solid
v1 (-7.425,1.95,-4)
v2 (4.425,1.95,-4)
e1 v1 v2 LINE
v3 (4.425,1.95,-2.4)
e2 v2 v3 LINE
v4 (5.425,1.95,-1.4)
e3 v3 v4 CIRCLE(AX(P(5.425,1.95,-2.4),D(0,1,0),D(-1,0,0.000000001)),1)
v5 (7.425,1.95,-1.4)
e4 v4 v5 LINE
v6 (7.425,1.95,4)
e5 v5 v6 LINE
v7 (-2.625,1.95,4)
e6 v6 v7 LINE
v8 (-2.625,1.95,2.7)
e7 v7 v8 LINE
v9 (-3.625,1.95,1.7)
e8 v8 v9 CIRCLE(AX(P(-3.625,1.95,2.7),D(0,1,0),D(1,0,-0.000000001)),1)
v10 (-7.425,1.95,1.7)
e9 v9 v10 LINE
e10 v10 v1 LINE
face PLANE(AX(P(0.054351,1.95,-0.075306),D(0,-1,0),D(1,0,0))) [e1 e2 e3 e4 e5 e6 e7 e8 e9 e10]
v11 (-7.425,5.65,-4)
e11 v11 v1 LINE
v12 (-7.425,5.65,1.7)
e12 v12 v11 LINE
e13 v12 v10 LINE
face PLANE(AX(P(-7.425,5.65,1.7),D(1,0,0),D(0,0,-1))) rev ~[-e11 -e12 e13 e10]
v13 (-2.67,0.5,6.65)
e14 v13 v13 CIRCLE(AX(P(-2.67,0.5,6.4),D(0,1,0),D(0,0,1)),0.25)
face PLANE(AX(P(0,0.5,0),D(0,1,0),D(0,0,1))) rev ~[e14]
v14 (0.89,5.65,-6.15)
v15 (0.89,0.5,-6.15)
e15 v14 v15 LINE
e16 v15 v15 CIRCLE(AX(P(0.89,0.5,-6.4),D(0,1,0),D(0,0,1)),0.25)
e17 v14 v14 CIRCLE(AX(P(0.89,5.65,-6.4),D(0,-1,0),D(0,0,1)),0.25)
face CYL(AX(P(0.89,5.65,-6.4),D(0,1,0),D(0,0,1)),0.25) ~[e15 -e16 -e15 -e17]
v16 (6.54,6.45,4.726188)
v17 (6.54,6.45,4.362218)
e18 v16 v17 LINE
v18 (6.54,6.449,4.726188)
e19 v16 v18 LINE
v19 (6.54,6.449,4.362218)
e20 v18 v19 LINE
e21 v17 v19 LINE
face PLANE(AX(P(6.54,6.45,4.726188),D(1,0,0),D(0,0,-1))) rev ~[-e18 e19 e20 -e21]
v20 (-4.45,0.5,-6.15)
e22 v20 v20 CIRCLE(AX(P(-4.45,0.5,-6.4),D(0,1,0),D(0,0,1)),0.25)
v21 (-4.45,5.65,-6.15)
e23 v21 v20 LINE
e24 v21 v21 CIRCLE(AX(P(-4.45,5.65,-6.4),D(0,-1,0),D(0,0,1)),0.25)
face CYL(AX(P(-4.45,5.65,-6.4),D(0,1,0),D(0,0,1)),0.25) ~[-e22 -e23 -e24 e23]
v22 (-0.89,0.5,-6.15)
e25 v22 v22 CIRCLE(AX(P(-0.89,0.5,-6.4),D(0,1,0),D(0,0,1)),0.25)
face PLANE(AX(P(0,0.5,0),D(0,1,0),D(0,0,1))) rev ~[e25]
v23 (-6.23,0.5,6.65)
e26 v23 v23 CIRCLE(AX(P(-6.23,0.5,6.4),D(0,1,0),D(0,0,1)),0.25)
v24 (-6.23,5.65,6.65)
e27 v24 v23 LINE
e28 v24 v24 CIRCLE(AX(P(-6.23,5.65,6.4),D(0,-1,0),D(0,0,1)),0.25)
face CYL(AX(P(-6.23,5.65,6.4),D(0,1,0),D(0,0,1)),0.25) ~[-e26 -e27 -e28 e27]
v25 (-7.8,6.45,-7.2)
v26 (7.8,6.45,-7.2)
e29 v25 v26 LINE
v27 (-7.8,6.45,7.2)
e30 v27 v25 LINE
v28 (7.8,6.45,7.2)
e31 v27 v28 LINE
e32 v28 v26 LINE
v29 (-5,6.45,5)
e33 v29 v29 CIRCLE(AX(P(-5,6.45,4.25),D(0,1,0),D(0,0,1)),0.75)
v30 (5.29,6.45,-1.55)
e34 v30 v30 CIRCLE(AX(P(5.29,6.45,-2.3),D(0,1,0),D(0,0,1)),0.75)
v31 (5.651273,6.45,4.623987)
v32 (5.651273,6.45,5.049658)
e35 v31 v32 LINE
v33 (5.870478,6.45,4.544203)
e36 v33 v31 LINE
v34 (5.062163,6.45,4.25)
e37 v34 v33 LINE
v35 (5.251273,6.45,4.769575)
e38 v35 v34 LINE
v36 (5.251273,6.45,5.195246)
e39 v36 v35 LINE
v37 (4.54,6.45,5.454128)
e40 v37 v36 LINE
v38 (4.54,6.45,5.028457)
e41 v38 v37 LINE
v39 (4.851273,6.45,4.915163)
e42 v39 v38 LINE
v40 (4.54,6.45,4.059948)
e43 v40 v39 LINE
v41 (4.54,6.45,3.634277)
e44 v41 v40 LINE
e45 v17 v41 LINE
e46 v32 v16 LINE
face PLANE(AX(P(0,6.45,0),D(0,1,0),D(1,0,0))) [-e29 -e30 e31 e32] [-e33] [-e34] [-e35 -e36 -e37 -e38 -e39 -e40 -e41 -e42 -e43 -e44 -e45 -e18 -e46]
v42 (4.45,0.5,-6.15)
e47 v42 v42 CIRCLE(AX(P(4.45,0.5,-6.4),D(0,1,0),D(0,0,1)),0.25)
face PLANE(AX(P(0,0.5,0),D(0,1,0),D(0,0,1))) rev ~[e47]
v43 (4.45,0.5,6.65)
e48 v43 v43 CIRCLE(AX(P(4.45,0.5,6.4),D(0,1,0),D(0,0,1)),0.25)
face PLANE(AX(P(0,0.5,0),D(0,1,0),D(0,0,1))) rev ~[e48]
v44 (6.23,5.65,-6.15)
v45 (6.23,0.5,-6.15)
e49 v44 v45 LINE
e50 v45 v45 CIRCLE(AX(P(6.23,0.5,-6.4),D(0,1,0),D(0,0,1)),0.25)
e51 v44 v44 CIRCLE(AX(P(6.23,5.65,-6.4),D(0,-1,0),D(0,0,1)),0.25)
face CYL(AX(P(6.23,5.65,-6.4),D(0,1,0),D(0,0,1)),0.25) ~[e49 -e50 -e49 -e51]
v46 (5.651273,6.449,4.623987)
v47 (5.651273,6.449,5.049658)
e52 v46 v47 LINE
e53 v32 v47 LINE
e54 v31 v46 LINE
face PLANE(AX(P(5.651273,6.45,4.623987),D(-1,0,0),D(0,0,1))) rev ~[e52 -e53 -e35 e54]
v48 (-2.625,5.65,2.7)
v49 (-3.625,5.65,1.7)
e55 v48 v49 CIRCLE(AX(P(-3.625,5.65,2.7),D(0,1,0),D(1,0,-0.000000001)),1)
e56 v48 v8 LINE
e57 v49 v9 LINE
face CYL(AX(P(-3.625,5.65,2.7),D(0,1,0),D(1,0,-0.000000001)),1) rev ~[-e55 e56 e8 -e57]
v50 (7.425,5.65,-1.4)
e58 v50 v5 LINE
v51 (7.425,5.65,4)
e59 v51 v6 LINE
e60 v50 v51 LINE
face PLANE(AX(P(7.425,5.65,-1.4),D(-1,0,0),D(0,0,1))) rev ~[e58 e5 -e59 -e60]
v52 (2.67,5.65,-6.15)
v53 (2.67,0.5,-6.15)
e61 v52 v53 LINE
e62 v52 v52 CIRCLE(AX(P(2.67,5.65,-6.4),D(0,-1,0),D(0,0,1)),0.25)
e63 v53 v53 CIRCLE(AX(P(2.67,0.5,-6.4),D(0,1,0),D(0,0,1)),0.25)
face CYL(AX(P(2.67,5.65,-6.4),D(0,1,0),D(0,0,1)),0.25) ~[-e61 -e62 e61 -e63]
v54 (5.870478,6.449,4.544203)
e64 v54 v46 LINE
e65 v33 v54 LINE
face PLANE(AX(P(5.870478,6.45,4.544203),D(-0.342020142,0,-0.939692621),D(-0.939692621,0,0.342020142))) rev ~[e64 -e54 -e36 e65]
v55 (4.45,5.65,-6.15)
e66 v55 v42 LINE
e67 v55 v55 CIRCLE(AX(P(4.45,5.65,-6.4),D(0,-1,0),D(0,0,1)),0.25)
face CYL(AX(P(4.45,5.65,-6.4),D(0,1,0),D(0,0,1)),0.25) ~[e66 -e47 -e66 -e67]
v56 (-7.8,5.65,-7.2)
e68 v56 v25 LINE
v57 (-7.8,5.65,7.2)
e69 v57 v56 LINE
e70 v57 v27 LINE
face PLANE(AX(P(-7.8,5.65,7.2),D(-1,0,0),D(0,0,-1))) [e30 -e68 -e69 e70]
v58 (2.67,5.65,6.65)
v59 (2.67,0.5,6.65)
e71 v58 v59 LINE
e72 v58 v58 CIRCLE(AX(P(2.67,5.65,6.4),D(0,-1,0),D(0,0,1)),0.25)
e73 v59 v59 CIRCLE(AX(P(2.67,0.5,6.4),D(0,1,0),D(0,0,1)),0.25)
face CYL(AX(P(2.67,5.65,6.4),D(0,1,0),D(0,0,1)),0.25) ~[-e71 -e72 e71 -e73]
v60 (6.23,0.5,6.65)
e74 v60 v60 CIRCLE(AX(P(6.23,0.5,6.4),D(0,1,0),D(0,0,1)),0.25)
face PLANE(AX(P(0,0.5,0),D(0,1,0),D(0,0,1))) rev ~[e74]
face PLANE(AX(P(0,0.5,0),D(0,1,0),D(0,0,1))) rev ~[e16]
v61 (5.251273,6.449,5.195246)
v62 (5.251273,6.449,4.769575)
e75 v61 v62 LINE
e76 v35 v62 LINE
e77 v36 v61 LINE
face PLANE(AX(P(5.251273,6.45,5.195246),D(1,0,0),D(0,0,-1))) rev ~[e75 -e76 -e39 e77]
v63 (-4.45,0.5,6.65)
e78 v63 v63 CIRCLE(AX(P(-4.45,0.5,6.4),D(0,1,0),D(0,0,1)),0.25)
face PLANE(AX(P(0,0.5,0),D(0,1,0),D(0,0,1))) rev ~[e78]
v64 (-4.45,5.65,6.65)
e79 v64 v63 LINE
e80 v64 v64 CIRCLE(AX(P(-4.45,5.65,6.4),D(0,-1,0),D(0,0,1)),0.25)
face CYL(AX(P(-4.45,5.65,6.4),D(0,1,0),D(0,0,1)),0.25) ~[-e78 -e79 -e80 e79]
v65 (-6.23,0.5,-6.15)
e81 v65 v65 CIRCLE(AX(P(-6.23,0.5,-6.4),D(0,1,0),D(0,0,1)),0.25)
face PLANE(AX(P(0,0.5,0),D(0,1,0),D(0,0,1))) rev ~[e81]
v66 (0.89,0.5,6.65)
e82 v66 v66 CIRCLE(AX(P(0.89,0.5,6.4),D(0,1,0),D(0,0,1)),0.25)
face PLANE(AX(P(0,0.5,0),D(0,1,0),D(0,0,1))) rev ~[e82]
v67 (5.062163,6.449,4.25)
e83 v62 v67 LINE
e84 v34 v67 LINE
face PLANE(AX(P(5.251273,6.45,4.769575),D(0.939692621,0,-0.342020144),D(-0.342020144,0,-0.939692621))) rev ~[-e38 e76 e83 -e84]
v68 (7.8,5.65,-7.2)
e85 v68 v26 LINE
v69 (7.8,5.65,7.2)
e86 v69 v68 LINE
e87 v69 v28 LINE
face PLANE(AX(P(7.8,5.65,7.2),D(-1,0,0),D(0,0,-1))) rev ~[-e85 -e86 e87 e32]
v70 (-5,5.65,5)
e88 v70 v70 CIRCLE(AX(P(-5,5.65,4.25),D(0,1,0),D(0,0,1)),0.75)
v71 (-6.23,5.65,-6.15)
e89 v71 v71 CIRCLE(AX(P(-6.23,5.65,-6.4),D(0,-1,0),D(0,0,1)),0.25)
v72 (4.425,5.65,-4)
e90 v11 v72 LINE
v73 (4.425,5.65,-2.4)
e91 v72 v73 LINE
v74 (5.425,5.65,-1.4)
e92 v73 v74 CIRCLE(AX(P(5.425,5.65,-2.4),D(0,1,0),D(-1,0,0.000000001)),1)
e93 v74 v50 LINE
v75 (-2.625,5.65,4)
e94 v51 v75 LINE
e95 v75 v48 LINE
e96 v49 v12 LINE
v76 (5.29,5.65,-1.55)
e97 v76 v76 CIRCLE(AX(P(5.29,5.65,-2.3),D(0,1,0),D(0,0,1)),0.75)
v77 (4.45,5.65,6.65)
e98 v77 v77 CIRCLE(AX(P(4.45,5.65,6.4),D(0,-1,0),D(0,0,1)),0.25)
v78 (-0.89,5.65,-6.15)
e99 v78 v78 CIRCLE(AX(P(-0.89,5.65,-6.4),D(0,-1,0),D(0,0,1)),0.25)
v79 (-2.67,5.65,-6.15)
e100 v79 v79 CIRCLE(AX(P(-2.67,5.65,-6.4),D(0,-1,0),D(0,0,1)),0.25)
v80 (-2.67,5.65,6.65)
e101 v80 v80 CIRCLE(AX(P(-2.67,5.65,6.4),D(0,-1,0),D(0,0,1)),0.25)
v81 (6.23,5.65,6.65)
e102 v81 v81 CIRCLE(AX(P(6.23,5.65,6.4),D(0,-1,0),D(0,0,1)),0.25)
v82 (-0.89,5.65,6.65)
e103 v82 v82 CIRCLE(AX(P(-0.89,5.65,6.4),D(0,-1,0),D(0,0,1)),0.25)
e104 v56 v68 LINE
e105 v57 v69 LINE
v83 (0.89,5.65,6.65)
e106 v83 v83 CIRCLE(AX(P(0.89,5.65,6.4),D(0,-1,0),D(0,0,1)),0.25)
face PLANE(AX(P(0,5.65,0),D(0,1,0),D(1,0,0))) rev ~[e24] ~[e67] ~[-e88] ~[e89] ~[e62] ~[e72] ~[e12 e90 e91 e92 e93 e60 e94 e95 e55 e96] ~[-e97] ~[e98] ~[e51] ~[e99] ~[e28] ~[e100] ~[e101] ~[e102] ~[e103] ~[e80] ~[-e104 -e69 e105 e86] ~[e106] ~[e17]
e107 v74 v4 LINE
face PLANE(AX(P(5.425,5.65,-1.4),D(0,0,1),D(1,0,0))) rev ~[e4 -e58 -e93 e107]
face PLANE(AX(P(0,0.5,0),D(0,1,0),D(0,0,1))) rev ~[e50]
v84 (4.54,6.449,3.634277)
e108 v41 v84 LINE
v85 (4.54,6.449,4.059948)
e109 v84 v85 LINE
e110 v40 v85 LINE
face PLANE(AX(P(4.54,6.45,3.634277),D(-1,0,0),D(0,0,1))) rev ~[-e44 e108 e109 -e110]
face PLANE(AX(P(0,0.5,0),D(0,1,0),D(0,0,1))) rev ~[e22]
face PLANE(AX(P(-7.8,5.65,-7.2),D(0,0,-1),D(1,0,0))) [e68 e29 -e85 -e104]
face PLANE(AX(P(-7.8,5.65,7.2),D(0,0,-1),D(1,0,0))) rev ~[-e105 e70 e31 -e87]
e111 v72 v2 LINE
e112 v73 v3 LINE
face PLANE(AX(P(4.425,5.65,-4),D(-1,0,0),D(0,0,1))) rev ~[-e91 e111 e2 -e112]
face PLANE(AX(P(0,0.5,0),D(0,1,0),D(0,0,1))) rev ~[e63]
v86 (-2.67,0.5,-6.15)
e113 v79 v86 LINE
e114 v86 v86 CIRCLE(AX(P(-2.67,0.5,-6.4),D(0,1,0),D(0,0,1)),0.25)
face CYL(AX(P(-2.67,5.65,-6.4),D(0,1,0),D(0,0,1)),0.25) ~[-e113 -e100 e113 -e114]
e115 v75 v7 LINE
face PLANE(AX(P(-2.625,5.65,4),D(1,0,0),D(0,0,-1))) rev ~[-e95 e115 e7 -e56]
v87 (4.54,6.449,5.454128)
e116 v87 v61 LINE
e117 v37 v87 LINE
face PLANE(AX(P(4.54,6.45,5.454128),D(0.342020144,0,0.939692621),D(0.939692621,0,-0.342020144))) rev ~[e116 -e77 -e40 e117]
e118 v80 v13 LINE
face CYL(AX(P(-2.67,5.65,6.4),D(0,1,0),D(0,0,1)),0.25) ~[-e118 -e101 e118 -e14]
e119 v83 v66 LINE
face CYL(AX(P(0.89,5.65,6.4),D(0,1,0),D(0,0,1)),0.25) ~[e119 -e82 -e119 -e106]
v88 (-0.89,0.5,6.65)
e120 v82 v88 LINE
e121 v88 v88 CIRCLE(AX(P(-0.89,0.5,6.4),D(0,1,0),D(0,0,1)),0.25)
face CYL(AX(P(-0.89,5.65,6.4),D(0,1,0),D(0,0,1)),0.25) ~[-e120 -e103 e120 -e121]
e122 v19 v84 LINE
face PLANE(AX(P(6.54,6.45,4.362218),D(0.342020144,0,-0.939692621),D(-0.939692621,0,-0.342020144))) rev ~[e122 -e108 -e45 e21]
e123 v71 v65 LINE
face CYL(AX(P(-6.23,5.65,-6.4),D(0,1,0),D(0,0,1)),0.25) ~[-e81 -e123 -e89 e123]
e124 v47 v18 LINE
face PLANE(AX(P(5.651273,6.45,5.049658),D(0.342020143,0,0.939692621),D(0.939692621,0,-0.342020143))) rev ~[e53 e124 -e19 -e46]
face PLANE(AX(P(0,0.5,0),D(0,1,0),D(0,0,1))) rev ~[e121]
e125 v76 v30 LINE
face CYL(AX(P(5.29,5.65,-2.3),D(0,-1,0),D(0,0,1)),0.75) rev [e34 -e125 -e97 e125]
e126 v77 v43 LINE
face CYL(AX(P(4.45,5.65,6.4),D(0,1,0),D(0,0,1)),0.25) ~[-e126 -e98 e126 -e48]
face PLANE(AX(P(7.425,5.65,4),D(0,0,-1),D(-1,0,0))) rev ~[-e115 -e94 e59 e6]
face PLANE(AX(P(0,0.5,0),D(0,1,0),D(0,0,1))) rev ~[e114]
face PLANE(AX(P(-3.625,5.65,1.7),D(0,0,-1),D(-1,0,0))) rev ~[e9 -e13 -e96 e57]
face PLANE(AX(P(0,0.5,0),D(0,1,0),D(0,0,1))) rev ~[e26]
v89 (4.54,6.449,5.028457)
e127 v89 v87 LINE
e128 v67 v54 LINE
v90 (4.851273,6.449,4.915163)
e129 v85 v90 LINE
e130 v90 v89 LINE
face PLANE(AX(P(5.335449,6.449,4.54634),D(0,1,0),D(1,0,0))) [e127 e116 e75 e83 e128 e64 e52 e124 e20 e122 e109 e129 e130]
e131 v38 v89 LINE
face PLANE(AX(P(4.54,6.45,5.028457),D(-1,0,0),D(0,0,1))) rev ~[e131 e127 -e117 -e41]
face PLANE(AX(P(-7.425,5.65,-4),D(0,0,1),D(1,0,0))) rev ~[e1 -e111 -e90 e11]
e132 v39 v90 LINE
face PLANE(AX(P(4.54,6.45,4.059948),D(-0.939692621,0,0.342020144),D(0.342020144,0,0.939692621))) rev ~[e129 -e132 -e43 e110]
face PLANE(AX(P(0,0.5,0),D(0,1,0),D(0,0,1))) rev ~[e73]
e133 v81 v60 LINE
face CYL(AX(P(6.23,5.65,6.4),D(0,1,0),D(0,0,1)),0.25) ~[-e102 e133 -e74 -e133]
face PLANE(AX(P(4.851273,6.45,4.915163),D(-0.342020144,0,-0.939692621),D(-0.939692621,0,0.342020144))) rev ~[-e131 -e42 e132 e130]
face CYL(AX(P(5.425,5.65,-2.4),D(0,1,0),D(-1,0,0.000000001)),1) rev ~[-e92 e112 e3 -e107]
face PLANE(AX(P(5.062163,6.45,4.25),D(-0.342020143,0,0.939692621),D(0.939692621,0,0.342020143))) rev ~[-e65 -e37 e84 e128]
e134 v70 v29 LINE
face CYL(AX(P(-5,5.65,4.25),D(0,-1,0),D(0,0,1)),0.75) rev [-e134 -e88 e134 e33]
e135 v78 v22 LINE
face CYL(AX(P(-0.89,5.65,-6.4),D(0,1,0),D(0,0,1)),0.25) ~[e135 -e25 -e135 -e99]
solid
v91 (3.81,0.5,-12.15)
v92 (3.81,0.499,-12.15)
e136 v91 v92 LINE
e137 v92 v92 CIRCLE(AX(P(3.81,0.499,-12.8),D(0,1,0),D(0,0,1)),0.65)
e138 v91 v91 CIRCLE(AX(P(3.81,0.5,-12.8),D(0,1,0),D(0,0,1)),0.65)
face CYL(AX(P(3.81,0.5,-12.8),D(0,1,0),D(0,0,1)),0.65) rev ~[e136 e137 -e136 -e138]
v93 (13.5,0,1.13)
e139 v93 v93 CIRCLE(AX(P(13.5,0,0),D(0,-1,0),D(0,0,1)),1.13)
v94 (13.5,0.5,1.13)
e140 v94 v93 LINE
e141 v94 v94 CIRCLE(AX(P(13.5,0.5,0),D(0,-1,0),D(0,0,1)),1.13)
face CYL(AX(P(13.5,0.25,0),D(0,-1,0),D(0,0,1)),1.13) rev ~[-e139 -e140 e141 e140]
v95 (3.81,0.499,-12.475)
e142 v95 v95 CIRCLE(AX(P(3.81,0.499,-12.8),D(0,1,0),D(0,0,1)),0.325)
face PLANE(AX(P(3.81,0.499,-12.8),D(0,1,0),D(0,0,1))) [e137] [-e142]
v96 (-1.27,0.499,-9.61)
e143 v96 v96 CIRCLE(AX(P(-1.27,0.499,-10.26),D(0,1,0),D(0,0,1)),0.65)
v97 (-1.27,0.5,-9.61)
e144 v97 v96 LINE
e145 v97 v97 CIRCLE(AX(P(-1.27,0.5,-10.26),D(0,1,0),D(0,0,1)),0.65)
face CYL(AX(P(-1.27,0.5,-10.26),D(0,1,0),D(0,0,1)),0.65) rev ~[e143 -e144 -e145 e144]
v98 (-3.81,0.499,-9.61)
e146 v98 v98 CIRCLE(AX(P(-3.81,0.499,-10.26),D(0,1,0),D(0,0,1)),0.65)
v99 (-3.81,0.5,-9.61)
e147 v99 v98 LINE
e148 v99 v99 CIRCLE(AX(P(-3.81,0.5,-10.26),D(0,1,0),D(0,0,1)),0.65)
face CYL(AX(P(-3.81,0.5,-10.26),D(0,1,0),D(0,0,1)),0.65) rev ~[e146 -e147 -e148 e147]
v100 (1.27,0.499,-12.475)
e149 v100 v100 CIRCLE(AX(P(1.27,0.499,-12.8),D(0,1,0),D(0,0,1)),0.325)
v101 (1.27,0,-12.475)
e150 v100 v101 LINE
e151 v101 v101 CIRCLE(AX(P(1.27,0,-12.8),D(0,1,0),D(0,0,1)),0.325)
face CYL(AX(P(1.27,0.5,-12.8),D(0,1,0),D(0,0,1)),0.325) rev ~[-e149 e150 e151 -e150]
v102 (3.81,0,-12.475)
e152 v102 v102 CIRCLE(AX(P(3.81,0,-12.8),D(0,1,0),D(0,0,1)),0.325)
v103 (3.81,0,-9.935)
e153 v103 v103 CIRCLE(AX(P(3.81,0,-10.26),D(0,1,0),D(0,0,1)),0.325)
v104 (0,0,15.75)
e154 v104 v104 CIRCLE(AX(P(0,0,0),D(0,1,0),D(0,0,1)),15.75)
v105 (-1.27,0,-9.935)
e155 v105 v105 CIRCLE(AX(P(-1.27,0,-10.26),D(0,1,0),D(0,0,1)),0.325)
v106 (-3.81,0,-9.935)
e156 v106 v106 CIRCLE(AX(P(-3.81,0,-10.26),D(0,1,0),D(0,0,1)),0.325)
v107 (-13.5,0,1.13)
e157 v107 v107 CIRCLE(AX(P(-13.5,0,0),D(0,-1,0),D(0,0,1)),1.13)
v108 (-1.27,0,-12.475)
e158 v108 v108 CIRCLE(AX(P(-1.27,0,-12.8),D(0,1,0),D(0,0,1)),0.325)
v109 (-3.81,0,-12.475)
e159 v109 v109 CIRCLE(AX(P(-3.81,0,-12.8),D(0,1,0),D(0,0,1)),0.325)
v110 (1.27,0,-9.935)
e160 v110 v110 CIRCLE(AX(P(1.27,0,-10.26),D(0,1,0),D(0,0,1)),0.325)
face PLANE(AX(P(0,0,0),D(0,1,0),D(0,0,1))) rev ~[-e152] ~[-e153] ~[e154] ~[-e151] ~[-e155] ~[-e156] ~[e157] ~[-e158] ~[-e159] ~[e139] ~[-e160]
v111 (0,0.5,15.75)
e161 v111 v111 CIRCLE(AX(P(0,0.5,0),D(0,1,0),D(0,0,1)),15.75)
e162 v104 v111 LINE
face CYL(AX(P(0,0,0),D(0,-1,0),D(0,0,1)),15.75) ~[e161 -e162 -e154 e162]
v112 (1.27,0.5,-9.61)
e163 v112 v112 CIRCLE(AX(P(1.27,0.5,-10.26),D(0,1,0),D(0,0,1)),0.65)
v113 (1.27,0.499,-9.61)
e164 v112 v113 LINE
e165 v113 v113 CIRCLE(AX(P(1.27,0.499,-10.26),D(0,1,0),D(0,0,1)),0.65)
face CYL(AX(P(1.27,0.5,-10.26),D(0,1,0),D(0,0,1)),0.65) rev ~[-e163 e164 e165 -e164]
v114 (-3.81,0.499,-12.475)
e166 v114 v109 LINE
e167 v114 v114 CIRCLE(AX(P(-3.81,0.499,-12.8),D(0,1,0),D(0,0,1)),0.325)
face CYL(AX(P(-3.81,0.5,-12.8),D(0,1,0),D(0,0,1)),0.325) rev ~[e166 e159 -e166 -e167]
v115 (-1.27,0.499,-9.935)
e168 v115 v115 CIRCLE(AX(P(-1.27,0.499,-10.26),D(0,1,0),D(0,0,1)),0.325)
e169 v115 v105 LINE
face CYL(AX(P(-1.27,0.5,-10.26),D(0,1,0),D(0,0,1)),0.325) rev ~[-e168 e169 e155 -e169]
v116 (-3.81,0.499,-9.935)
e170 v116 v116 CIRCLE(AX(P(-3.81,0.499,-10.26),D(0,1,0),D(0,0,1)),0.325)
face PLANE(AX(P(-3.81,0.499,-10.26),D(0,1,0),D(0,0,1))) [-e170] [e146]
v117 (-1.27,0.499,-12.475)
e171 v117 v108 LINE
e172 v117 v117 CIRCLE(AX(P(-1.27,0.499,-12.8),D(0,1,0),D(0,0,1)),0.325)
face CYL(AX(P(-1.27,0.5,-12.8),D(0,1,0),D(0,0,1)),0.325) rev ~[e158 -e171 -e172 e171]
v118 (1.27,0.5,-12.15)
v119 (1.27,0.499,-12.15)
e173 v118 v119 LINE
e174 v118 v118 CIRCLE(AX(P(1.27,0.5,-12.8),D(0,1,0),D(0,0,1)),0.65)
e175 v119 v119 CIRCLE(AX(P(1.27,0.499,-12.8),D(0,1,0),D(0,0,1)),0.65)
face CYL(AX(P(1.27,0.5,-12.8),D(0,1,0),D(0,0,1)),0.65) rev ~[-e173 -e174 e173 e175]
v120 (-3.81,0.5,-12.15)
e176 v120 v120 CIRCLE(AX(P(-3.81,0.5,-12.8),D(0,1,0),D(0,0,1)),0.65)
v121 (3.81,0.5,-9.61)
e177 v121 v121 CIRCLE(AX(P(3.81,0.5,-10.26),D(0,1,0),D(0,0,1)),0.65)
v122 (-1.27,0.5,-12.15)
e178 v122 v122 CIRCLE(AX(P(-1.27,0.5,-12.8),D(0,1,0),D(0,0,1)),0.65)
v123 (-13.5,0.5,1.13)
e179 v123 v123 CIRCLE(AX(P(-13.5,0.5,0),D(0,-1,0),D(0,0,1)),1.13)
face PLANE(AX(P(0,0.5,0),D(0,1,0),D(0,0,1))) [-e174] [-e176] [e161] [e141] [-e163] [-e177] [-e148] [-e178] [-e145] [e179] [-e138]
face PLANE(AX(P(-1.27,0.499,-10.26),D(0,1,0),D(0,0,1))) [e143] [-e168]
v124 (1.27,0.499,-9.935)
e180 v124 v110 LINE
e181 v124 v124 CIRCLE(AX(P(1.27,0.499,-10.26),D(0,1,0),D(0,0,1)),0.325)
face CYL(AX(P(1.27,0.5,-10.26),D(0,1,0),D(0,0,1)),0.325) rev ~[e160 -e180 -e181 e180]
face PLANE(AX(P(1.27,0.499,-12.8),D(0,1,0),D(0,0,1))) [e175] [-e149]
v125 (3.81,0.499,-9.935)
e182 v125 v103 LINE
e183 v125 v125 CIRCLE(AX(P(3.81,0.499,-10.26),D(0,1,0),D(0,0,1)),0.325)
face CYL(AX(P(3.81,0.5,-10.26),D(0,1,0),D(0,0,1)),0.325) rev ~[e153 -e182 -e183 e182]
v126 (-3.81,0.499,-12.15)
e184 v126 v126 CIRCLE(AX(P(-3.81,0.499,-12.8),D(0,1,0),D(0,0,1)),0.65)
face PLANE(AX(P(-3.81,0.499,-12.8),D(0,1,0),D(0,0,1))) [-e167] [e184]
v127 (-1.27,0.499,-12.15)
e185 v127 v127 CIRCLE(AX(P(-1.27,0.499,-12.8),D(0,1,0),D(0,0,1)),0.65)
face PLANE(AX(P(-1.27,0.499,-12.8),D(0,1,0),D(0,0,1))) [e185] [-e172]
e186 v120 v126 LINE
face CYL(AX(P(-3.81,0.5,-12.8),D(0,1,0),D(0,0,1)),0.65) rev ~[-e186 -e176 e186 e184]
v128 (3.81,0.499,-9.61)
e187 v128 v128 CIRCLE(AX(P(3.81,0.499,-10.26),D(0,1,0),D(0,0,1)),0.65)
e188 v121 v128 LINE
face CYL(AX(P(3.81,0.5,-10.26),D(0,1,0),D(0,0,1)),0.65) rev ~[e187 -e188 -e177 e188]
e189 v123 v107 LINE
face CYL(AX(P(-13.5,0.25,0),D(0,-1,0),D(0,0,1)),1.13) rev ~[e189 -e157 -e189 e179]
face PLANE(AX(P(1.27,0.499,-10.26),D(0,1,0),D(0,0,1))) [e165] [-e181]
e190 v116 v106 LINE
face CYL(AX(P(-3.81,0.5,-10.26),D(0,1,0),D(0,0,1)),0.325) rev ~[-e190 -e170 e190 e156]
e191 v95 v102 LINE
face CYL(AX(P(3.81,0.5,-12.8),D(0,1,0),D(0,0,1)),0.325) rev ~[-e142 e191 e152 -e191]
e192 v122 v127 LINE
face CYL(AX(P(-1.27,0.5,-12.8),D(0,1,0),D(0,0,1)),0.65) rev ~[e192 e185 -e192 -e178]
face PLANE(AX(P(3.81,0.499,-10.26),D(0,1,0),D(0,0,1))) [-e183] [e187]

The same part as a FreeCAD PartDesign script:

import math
import FreeCAD as App
import Part
import Sketcher
from FreeCAD import Vector
Q = App.Units.Quantity

doc = App.newDocument("Part")
body = doc.addObject("PartDesign::Body", "Body")

# Sketch on XZ plane
sketch1 = body.newObject("Sketcher::SketchObject", "Sketch")
sketch1.AttachmentSupport = (doc.getObject("XZ_Plane"), [""])
sketch1.MapMode = "FlatFace"
sketch1.addGeometry(Part.Circle(Vector(0, 0, 0), Vector(0, 0, 1), 16), False)
sketch1.addConstraint([
    Sketcher.Constraint("Coincident", 0, 3, -1, 1),
    Sketcher.Constraint("Diameter", 0, Q("31.5 mm")),
])
pad1 = body.newObject("PartDesign::Pad", "Pad")
pad1.Profile = sketch1
pad1.Length = 0.5
pad1.Reversed = True
body2 = doc.addObject("PartDesign::Body", "Body001")

# Sketch on XZ plane
sketch2 = body2.newObject("Sketcher::SketchObject", "Sketch001")
sketch2.AttachmentSupport = (doc.getObject("XZ_Plane001"), [""])
sketch2.MapMode = "FlatFace"
sketch2.AttachmentOffset = App.Placement(Vector(0, 0, -5.65), App.Rotation())
sketch2.addGeometry([
    Part.LineSegment(Vector(-7.8, -7.2, 0), Vector(-7.8, 7.2, 0)),  # 0
    Part.LineSegment(Vector(-7.8, 7.2, 0), Vector(7.8, 7.2, 0)),  # 1
    Part.LineSegment(Vector(7.8, 7.2, 0), Vector(7.8, -7.2, 0)),  # 2
    Part.LineSegment(Vector(7.8, -7.2, 0), Vector(-7.8, -7.2, 0)),  # 3
    Part.Circle(Vector(-5, 4.2, 0), Vector(0, 0, 1), 0.8),  # 4
    Part.Circle(Vector(5.3, -2.3, 0), Vector(0, 0, 1), 0.8),  # 5
], False)
sketch2.addConstraint([
    Sketcher.Constraint("Coincident", 0, 2, 1, 1),
    Sketcher.Constraint("Coincident", 1, 2, 2, 1),
    Sketcher.Constraint("Coincident", 2, 2, 3, 1),
    Sketcher.Constraint("Coincident", 3, 2, 0, 1),
    Sketcher.Constraint("Vertical", 0),
    Sketcher.Constraint("Horizontal", 1),
    Sketcher.Constraint("Vertical", 2),
    Sketcher.Constraint("Horizontal", 3),
    Sketcher.Constraint("Equal", 4, 5),
    Sketcher.Constraint("Symmetric", 0, 2, 2, 2, -1, 1),
    Sketcher.Constraint("Diameter", 4, Q("1.5 mm")),
    Sketcher.Constraint("DistanceX", 1, 1, 1, 2, Q("15.6 mm")),
    Sketcher.Constraint("DistanceY", 0, 1, 0, 2, Q("14.4 mm")),
    Sketcher.Constraint("DistanceX", 4, 3, -1, 1, Q("5 mm")),
    Sketcher.Constraint("DistanceY", 5, 3, -1, 1, Q("2.3 mm")),
    Sketcher.Constraint("DistanceY", -1, 1, 4, 3, Q("4.25 mm")),
    Sketcher.Constraint("DistanceX", -1, 1, 5, 3, Q("5.29 mm")),
])
pad2 = body2.newObject("PartDesign::Pad", "Pad001")
pad2.Profile = sketch2
pad2.Length = 0.8
pad2.Reversed = True

# Sketch on XZ plane
sketch3 = body2.newObject("Sketcher::SketchObject", "Sketch002")
sketch3.AttachmentSupport = (doc.getObject("XZ_Plane001"), [""])
sketch3.MapMode = "FlatFace"
sketch3.AttachmentOffset = App.Placement(Vector(0, 0, -6.45), App.Rotation())
sketch3.addGeometry([
    Part.LineSegment(Vector(6.54, 4.36, 0), Vector(4.54, 3.63, 0)),  # 0
    Part.LineSegment(Vector(4.54, 3.63, 0), Vector(4.54, 4.06, 0)),  # 1
    Part.LineSegment(Vector(4.54, 4.06, 0), Vector(4.85, 4.92, 0)),  # 2
    Part.LineSegment(Vector(4.85, 4.92, 0), Vector(4.54, 5.03, 0)),  # 3
    Part.LineSegment(Vector(4.54, 5.03, 0), Vector(4.54, 5.45, 0)),  # 4
    Part.LineSegment(Vector(4.54, 5.45, 0), Vector(5.25, 5.2, 0)),  # 5
    Part.LineSegment(Vector(5.25, 5.2, 0), Vector(5.25, 4.77, 0)),  # 6
    Part.LineSegment(Vector(5.25, 4.77, 0), Vector(5.06, 4.25, 0)),  # 7
    Part.LineSegment(Vector(5.06, 4.25, 0), Vector(5.87, 4.54, 0)),  # 8
    Part.LineSegment(Vector(5.87, 4.54, 0), Vector(5.65, 4.62, 0)),  # 9
    Part.LineSegment(Vector(5.65, 4.62, 0), Vector(5.65, 5.05, 0)),  # 10
    Part.LineSegment(Vector(5.65, 5.05, 0), Vector(6.54, 4.73, 0)),  # 11
    Part.LineSegment(Vector(6.54, 4.73, 0), Vector(6.54, 4.36, 0)),  # 12
], False)
sketch3.addConstraint([
    Sketcher.Constraint("Coincident", 0, 2, 1, 1),
    Sketcher.Constraint("Coincident", 1, 2, 2, 1),
    Sketcher.Constraint("Coincident", 2, 2, 3, 1),
    Sketcher.Constraint("Coincident", 3, 2, 4, 1),
    Sketcher.Constraint("Coincident", 4, 2, 5, 1),
    Sketcher.Constraint("Coincident", 5, 2, 6, 1),
    Sketcher.Constraint("Coincident", 6, 2, 7, 1),
    Sketcher.Constraint("Coincident", 7, 2, 8, 1),
    Sketcher.Constraint("Coincident", 8, 2, 9, 1),
    Sketcher.Constraint("Coincident", 9, 2, 10, 1),
    Sketcher.Constraint("Coincident", 10, 2, 11, 1),
    Sketcher.Constraint("Coincident", 11, 2, 12, 1),
    Sketcher.Constraint("Coincident", 12, 2, 0, 1),
    Sketcher.Constraint("Vertical", 1),
    Sketcher.Constraint("Vertical", 4),
    Sketcher.Constraint("Vertical", 6),
    Sketcher.Constraint("Vertical", 10),
    Sketcher.Constraint("Vertical", 12),
    Sketcher.Constraint("Perpendicular", 2, 3),
    Sketcher.Constraint("Parallel", 3, 5),
    Sketcher.Constraint("Perpendicular", 5, 7),
    Sketcher.Constraint("Parallel", 0, 8),
    Sketcher.Constraint("Perpendicular", 7, 9),
    Sketcher.Constraint("Parallel", 9, 11),
    Sketcher.Constraint("Vertical", 1, 2, 3, 2),
    Sketcher.Constraint("Equal", 1, 4),
    Sketcher.Constraint("Equal", 4, 6),
    Sketcher.Constraint("Equal", 6, 10),
    Sketcher.Constraint("Angle", 0, Q("-160 deg")),
    Sketcher.Constraint("Angle", 2, Q("70 deg")),
    Sketcher.Constraint("DistanceX", 2, 2, 5, 2, Q("0.4 mm")),
    Sketcher.Constraint("DistanceX", 6, 2, 9, 2, Q("0.4 mm")),
    Sketcher.Constraint("DistanceX", -1, 1, 0, 2, Q("4.54 mm")),
    Sketcher.Constraint("DistanceY", -1, 1, 7, 2, Q("4.25 mm")),
    Sketcher.Constraint("DistanceX", -1, 1, 11, 2, Q("6.54 mm")),
    Sketcher.Constraint("Distance", 2, Q("0.910101 mm")),
    Sketcher.Constraint("DistanceY", 1, 1, 1, 2, Q("0.425671 mm")),
    Sketcher.Constraint("DistanceY", 12, 2, 12, 1, Q("0.36397 mm")),
    Sketcher.Constraint("Distance", 7, Q("0.55292 mm")),
])
pocket1 = body2.newObject("PartDesign::Pocket", "Pocket")
pocket1.Profile = sketch3
pocket1.Length = 0.001
pocket1.Reversed = True

# Sketch on XZ plane
sketch4 = body2.newObject("Sketcher::SketchObject", "Sketch003")
sketch4.AttachmentSupport = (doc.getObject("XZ_Plane001"), [""])
sketch4.MapMode = "FlatFace"
sketch4.AttachmentOffset = App.Placement(Vector(0, 0, -5.65), App.Rotation())
sketch4.addGeometry([
    Part.LineSegment(Vector(7.4, -1.4, 0), Vector(7.4, 4, 0)),  # 0
    Part.LineSegment(Vector(7.4, 4, 0), Vector(-2.6, 4, 0)),  # 1
    Part.LineSegment(Vector(-2.6, 4, 0), Vector(-2.6, 2.7, 0)),  # 2
    Part.ArcOfCircle(Part.Circle(Vector(-3.6, 2.7, 0), Vector(0, 0, 1), 1), math.radians(-90), math.radians(0)),  # 3
    Part.LineSegment(Vector(-3.6, 1.7, 0), Vector(-7.4, 1.7, 0)),  # 4
    Part.LineSegment(Vector(-7.4, 1.7, 0), Vector(-7.4, -4, 0)),  # 5
    Part.LineSegment(Vector(-7.4, -4, 0), Vector(4.4, -4, 0)),  # 6
    Part.LineSegment(Vector(4.4, -4, 0), Vector(4.4, -2.4, 0)),  # 7
    Part.ArcOfCircle(Part.Circle(Vector(5.4, -2.4, 0), Vector(0, 0, 1), 1), math.radians(90), math.radians(180)),  # 8
    Part.LineSegment(Vector(5.4, -1.4, 0), Vector(7.4, -1.4, 0)),  # 9
], False)
sketch4.addConstraint([
    Sketcher.Constraint("Coincident", 0, 2, 1, 1),
    Sketcher.Constraint("Coincident", 1, 2, 2, 1),
    Sketcher.Constraint("Tangent", 2, 2, 3, 2),
    Sketcher.Constraint("Tangent", 3, 1, 4, 1),
    Sketcher.Constraint("Coincident", 4, 2, 5, 1),
    Sketcher.Constraint("Coincident", 5, 2, 6, 1),
    Sketcher.Constraint("Coincident", 6, 2, 7, 1),
    Sketcher.Constraint("Tangent", 7, 2, 8, 2),
    Sketcher.Constraint("Tangent", 8, 1, 9, 1),
    Sketcher.Constraint("Coincident", 9, 2, 0, 1),
    Sketcher.Constraint("Vertical", 0),
    Sketcher.Constraint("Horizontal", 1),
    Sketcher.Constraint("Vertical", 2),
    Sketcher.Constraint("Horizontal", 4),
    Sketcher.Constraint("Vertical", 5),
    Sketcher.Constraint("Horizontal", 6),
    Sketcher.Constraint("Vertical", 7),
    Sketcher.Constraint("Horizontal", 9),
    Sketcher.Constraint("Equal", 3, 8),
    Sketcher.Constraint("Symmetric", 0, 2, 5, 2, -1, 1),
    Sketcher.Constraint("Radius", 3, Q("1 mm")),
    Sketcher.Constraint("DistanceX", 9, 1, 9, 2, Q("2 mm")),
    Sketcher.Constraint("DistanceX", 4, 2, 4, 1, Q("3.8 mm")),
    Sketcher.Constraint("DistanceY", 0, 1, 0, 2, Q("5.4 mm")),
    Sketcher.Constraint("DistanceY", 2, 2, 2, 1, Q("1.3 mm")),
    Sketcher.Constraint("DistanceY", 5, 2, 5, 1, Q("5.7 mm")),
    Sketcher.Constraint("DistanceX", 1, 2, 1, 1, Q("10.05 mm")),
])
pad3 = body2.newObject("PartDesign::Pad", "Pad002")
pad3.Profile = sketch4
pad3.Length = 3.7

# Sketch on XZ plane
sketch5 = body2.newObject("Sketcher::SketchObject", "Sketch004")
sketch5.AttachmentSupport = (doc.getObject("XZ_Plane001"), [""])
sketch5.MapMode = "FlatFace"
sketch5.AttachmentOffset = App.Placement(Vector(0, 0, -5.65), App.Rotation())
sketch5.addGeometry(Part.Circle(Vector(6.23, 6.4, 0), Vector(0, 0, 1), 0.25), False)
sketch5.addConstraint([
    Sketcher.Constraint("Diameter", 0, Q("0.5 mm")),
    Sketcher.Constraint("DistanceY", -1, 1, 0, 3, Q("6.4 mm")),
    Sketcher.Constraint("DistanceX", -1, 1, 0, 3, Q("6.23 mm")),
])
pad4 = body2.newObject("PartDesign::Pad", "Pad003")
pad4.Profile = sketch5
pad4.Length = 5.15

# Sketch on XZ plane
sketch6 = body2.newObject("Sketcher::SketchObject", "Sketch005")
sketch6.AttachmentSupport = (doc.getObject("XZ_Plane001"), [""])
sketch6.MapMode = "FlatFace"
sketch6.AttachmentOffset = App.Placement(Vector(0, 0, -5.65), App.Rotation())
sketch6.addGeometry(Part.Circle(Vector(6.23, -6.4, 0), Vector(0, 0, 1), 0.25), False)
sketch6.addConstraint([
    Sketcher.Constraint("Diameter", 0, Q("0.5 mm")),
    Sketcher.Constraint("DistanceY", 0, 3, -1, 1, Q("6.4 mm")),
    Sketcher.Constraint("DistanceX", -1, 1, 0, 3, Q("6.23 mm")),
])
pad5 = body2.newObject("PartDesign::Pad", "Pad004")
pad5.Profile = sketch6
pad5.Length = 5.15

# Sketch on XZ plane
sketch7 = body2.newObject("Sketcher::SketchObject", "Sketch006")
sketch7.AttachmentSupport = (doc.getObject("XZ_Plane001"), [""])
sketch7.MapMode = "FlatFace"
sketch7.AttachmentOffset = App.Placement(Vector(0, 0, -5.65), App.Rotation())
sketch7.addGeometry(Part.Circle(Vector(4.45, 6.4, 0), Vector(0, 0, 1), 0.25), False)
sketch7.addConstraint([
    Sketcher.Constraint("Diameter", 0, Q("0.5 mm")),
    Sketcher.Constraint("DistanceY", -1, 1, 0, 3, Q("6.4 mm")),
    Sketcher.Constraint("DistanceX", -1, 1, 0, 3, Q("4.45 mm")),
])
pad6 = body2.newObject("PartDesign::Pad", "Pad005")
pad6.Profile = sketch7
pad6.Length = 5.15

# Sketch on XZ plane
sketch8 = body2.newObject("Sketcher::SketchObject", "Sketch007")
sketch8.AttachmentSupport = (doc.getObject("XZ_Plane001"), [""])
sketch8.MapMode = "FlatFace"
sketch8.AttachmentOffset = App.Placement(Vector(0, 0, -5.65), App.Rotation())
sketch8.addGeometry(Part.Circle(Vector(4.45, -6.4, 0), Vector(0, 0, 1), 0.25), False)
sketch8.addConstraint([
    Sketcher.Constraint("Diameter", 0, Q("0.5 mm")),
    Sketcher.Constraint("DistanceY", 0, 3, -1, 1, Q("6.4 mm")),
    Sketcher.Constraint("DistanceX", -1, 1, 0, 3, Q("4.45 mm")),
])
pad7 = body2.newObject("PartDesign::Pad", "Pad006")
pad7.Profile = sketch8
pad7.Length = 5.15

# Sketch on XZ plane
sketch9 = body2.newObject("Sketcher::SketchObject", "Sketch008")
sketch9.AttachmentSupport = (doc.getObject("XZ_Plane001"), [""])
sketch9.MapMode = "FlatFace"
sketch9.AttachmentOffset = App.Placement(Vector(0, 0, -5.65), App.Rotation())
sketch9.addGeometry(Part.Circle(Vector(2.67, 6.4, 0), Vector(0, 0, 1), 0.25), False)
sketch9.addConstraint([
    Sketcher.Constraint("Diameter", 0, Q("0.5 mm")),
    Sketcher.Constraint("DistanceY", -1, 1, 0, 3, Q("6.4 mm")),
    Sketcher.Constraint("DistanceX", -1, 1, 0, 3, Q("2.67 mm")),
])
pad8 = body2.newObject("PartDesign::Pad", "Pad007")
pad8.Profile = sketch9
pad8.Length = 5.15

# Sketch on XZ plane
sketch10 = body2.newObject("Sketcher::SketchObject", "Sketch009")
sketch10.AttachmentSupport = (doc.getObject("XZ_Plane001"), [""])
sketch10.MapMode = "FlatFace"
sketch10.AttachmentOffset = App.Placement(Vector(0, 0, -5.65), App.Rotation())
sketch10.addGeometry(Part.Circle(Vector(2.67, -6.4, 0), Vector(0, 0, 1), 0.25), False)
sketch10.addConstraint([
    Sketcher.Constraint("Diameter", 0, Q("0.5 mm")),
    Sketcher.Constraint("DistanceY", 0, 3, -1, 1, Q("6.4 mm")),
    Sketcher.Constraint("DistanceX", -1, 1, 0, 3, Q("2.67 mm")),
])
pad9 = body2.newObject("PartDesign::Pad", "Pad008")
pad9.Profile = sketch10
pad9.Length = 5.15

# Sketch on XZ plane
sketch11 = body2.newObject("Sketcher::SketchObject", "Sketch010")
sketch11.AttachmentSupport = (doc.getObject("XZ_Plane001"), [""])
sketch11.MapMode = "FlatFace"
sketch11.AttachmentOffset = App.Placement(Vector(0, 0, -5.65), App.Rotation())
sketch11.addGeometry(Part.Circle(Vector(0.89, 6.4, 0), Vector(0, 0, 1), 0.25), False)
sketch11.addConstraint([
    Sketcher.Constraint("Diameter", 0, Q("0.5 mm")),
    Sketcher.Constraint("DistanceY", -1, 1, 0, 3, Q("6.4 mm")),
    Sketcher.Constraint("DistanceX", -1, 1, 0, 3, Q("0.89 mm")),
])
pad10 = body2.newObject("PartDesign::Pad", "Pad009")
pad10.Profile = sketch11
pad10.Length = 5.15

# Sketch on XZ plane
sketch12 = body2.newObject("Sketcher::SketchObject", "Sketch011")
sketch12.AttachmentSupport = (doc.getObject("XZ_Plane001"), [""])
sketch12.MapMode = "FlatFace"
sketch12.AttachmentOffset = App.Placement(Vector(0, 0, -5.65), App.Rotation())
sketch12.addGeometry(Part.Circle(Vector(0.89, -6.4, 0), Vector(0, 0, 1), 0.25), False)
sketch12.addConstraint([
    Sketcher.Constraint("Diameter", 0, Q("0.5 mm")),
    Sketcher.Constraint("DistanceY", 0, 3, -1, 1, Q("6.4 mm")),
    Sketcher.Constraint("DistanceX", -1, 1, 0, 3, Q("0.89 mm")),
])
pad11 = body2.newObject("PartDesign::Pad", "Pad010")
pad11.Profile = sketch12
pad11.Length = 5.15

# Sketch on XZ plane
sketch13 = body2.newObject("Sketcher::SketchObject", "Sketch012")
sketch13.AttachmentSupport = (doc.getObject("XZ_Plane001"), [""])
sketch13.MapMode = "FlatFace"
sketch13.AttachmentOffset = App.Placement(Vector(0, 0, -5.65), App.Rotation())
sketch13.addGeometry(Part.Circle(Vector(-0.89, 6.4, 0), Vector(0, 0, 1), 0.25), False)
sketch13.addConstraint([
    Sketcher.Constraint("Diameter", 0, Q("0.5 mm")),
    Sketcher.Constraint("DistanceY", -1, 1, 0, 3, Q("6.4 mm")),
    Sketcher.Constraint("DistanceX", 0, 3, -1, 1, Q("0.89 mm")),
])
pad12 = body2.newObject("PartDesign::Pad", "Pad011")
pad12.Profile = sketch13
pad12.Length = 5.15

# Sketch on XZ plane
sketch14 = body2.newObject("Sketcher::SketchObject", "Sketch013")
sketch14.AttachmentSupport = (doc.getObject("XZ_Plane001"), [""])
sketch14.MapMode = "FlatFace"
sketch14.AttachmentOffset = App.Placement(Vector(0, 0, -5.65), App.Rotation())
sketch14.addGeometry(Part.Circle(Vector(-0.89, -6.4, 0), Vector(0, 0, 1), 0.25), False)
sketch14.addConstraint([
    Sketcher.Constraint("Diameter", 0, Q("0.5 mm")),
    Sketcher.Constraint("DistanceY", 0, 3, -1, 1, Q("6.4 mm")),
    Sketcher.Constraint("DistanceX", 0, 3, -1, 1, Q("0.89 mm")),
])
pad13 = body2.newObject("PartDesign::Pad", "Pad012")
pad13.Profile = sketch14
pad13.Length = 5.15

# Sketch on XZ plane
sketch15 = body2.newObject("Sketcher::SketchObject", "Sketch014")
sketch15.AttachmentSupport = (doc.getObject("XZ_Plane001"), [""])
sketch15.MapMode = "FlatFace"
sketch15.AttachmentOffset = App.Placement(Vector(0, 0, -5.65), App.Rotation())
sketch15.addGeometry(Part.Circle(Vector(-2.67, 6.4, 0), Vector(0, 0, 1), 0.25), False)
sketch15.addConstraint([
    Sketcher.Constraint("Diameter", 0, Q("0.5 mm")),
    Sketcher.Constraint("DistanceY", -1, 1, 0, 3, Q("6.4 mm")),
    Sketcher.Constraint("DistanceX", 0, 3, -1, 1, Q("2.67 mm")),
])
pad14 = body2.newObject("PartDesign::Pad", "Pad013")
pad14.Profile = sketch15
pad14.Length = 5.15

# Sketch on XZ plane
sketch16 = body2.newObject("Sketcher::SketchObject", "Sketch015")
sketch16.AttachmentSupport = (doc.getObject("XZ_Plane001"), [""])
sketch16.MapMode = "FlatFace"
sketch16.AttachmentOffset = App.Placement(Vector(0, 0, -5.65), App.Rotation())
sketch16.addGeometry(Part.Circle(Vector(-2.67, -6.4, 0), Vector(0, 0, 1), 0.25), False)
sketch16.addConstraint([
    Sketcher.Constraint("Diameter", 0, Q("0.5 mm")),
    Sketcher.Constraint("DistanceY", 0, 3, -1, 1, Q("6.4 mm")),
    Sketcher.Constraint("DistanceX", 0, 3, -1, 1, Q("2.67 mm")),
])
pad15 = body2.newObject("PartDesign::Pad", "Pad014")
pad15.Profile = sketch16
pad15.Length = 5.15

# Sketch on XZ plane
sketch17 = body2.newObject("Sketcher::SketchObject", "Sketch016")
sketch17.AttachmentSupport = (doc.getObject("XZ_Plane001"), [""])
sketch17.MapMode = "FlatFace"
sketch17.AttachmentOffset = App.Placement(Vector(0, 0, -5.65), App.Rotation())
sketch17.addGeometry(Part.Circle(Vector(-4.45, 6.4, 0), Vector(0, 0, 1), 0.25), False)
sketch17.addConstraint([
    Sketcher.Constraint("Diameter", 0, Q("0.5 mm")),
    Sketcher.Constraint("DistanceY", -1, 1, 0, 3, Q("6.4 mm")),
    Sketcher.Constraint("DistanceX", 0, 3, -1, 1, Q("4.45 mm")),
])
pad16 = body2.newObject("PartDesign::Pad", "Pad015")
pad16.Profile = sketch17
pad16.Length = 5.15

# Sketch on XZ plane
sketch18 = body2.newObject("Sketcher::SketchObject", "Sketch017")
sketch18.AttachmentSupport = (doc.getObject("XZ_Plane001"), [""])
sketch18.MapMode = "FlatFace"
sketch18.AttachmentOffset = App.Placement(Vector(0, 0, -5.65), App.Rotation())
sketch18.addGeometry(Part.Circle(Vector(-4.45, -6.4, 0), Vector(0, 0, 1), 0.25), False)
sketch18.addConstraint([
    Sketcher.Constraint("Diameter", 0, Q("0.5 mm")),
    Sketcher.Constraint("DistanceY", 0, 3, -1, 1, Q("6.4 mm")),
    Sketcher.Constraint("DistanceX", 0, 3, -1, 1, Q("4.45 mm")),
])
pad17 = body2.newObject("PartDesign::Pad", "Pad016")
pad17.Profile = sketch18
pad17.Length = 5.15

# Sketch on XZ plane
sketch19 = body2.newObject("Sketcher::SketchObject", "Sketch018")
sketch19.AttachmentSupport = (doc.getObject("XZ_Plane001"), [""])
sketch19.MapMode = "FlatFace"
sketch19.AttachmentOffset = App.Placement(Vector(0, 0, -5.65), App.Rotation())
sketch19.addGeometry(Part.Circle(Vector(-6.23, 6.4, 0), Vector(0, 0, 1), 0.25), False)
sketch19.addConstraint([
    Sketcher.Constraint("Diameter", 0, Q("0.5 mm")),
    Sketcher.Constraint("DistanceY", -1, 1, 0, 3, Q("6.4 mm")),
    Sketcher.Constraint("DistanceX", 0, 3, -1, 1, Q("6.23 mm")),
])
pad18 = body2.newObject("PartDesign::Pad", "Pad017")
pad18.Profile = sketch19
pad18.Length = 5.15

# Sketch on XZ plane
sketch20 = body2.newObject("Sketcher::SketchObject", "Sketch019")
sketch20.AttachmentSupport = (doc.getObject("XZ_Plane001"), [""])
sketch20.MapMode = "FlatFace"
sketch20.AttachmentOffset = App.Placement(Vector(0, 0, -5.65), App.Rotation())
sketch20.addGeometry(Part.Circle(Vector(-6.23, -6.4, 0), Vector(0, 0, 1), 0.25), False)
sketch20.addConstraint([
    Sketcher.Constraint("Diameter", 0, Q("0.5 mm")),
    Sketcher.Constraint("DistanceY", 0, 3, -1, 1, Q("6.4 mm")),
    Sketcher.Constraint("DistanceX", 0, 3, -1, 1, Q("6.23 mm")),
])
pad19 = body2.newObject("PartDesign::Pad", "Pad018")
pad19.Profile = sketch20
pad19.Length = 5.15

# Sketch on YZ plane
sketch21 = body.newObject("Sketcher::SketchObject", "Sketch020")
sketch21.AttachmentSupport = (doc.getObject("YZ_Plane"), [""])
sketch21.MapMode = "FlatFace"
sketch21.AttachmentOffset = App.Placement(Vector(0, 0, 13.5), App.Rotation())
sketch21.addGeometry([
    Part.LineSegment(Vector(0, 0, 0), Vector(0.5, 0, 0)),
    Part.LineSegment(Vector(0.5, 0, 0), Vector(0.5, 1.1, 0)),
    Part.LineSegment(Vector(0.5, 1.1, 0), Vector(0, 1.1, 0)),
    Part.LineSegment(Vector(0, 1.1, 0), Vector(0, 0, 0)),
], False)
sketch21.addConstraint([
    Sketcher.Constraint("Coincident", 0, 2, 1, 1),
    Sketcher.Constraint("Coincident", 1, 2, 2, 1),
    Sketcher.Constraint("Coincident", 2, 2, 3, 1),
    Sketcher.Constraint("Coincident", 3, 2, 0, 1),
    Sketcher.Constraint("Horizontal", 0),
    Sketcher.Constraint("Vertical", 1),
    Sketcher.Constraint("Horizontal", 2),
    Sketcher.Constraint("Vertical", 3),
    Sketcher.Constraint("Coincident", 3, 2, -1, 1),
    Sketcher.Constraint("DistanceX", 0, 1, 0, 2, Q("0.5 mm")),
    Sketcher.Constraint("DistanceY", 1, 1, 1, 2, Q("1.13 mm")),
])
groove = body.newObject("PartDesign::Groove", "Groove")
groove.Profile = sketch21
groove.ReferenceAxis = (sketch21, ["H_Axis"])
groove.Angle = 360
doc.recompute()

linearpattern = body.newObject("PartDesign::LinearPattern", "LinearPattern")
linearpattern.Originals = [groove]
linearpattern.Direction = (doc.getObject("X_Axis"), [""])
linearpattern.Mode = "offset"
linearpattern.Offset = 27
linearpattern.Occurrences = 2
linearpattern.Reversed = True
body.Tip = linearpattern

# Sketch on XZ plane
sketch22 = body.newObject("Sketcher::SketchObject", "Sketch021")
sketch22.AttachmentSupport = (doc.getObject("XZ_Plane"), [""])
sketch22.MapMode = "FlatFace"
sketch22.AttachmentOffset = App.Placement(Vector(0, 0, -0.5), App.Rotation())
sketch22.addGeometry([
    Part.Circle(Vector(3.81, -12.8, 0), Vector(0, 0, 1), 0.33),  # 0
    Part.Circle(Vector(1.27, -12.8, 0), Vector(0, 0, 1), 0.33),  # 1
    Part.Circle(Vector(-1.27, -12.8, 0), Vector(0, 0, 1), 0.33),  # 2
    Part.Circle(Vector(-3.81, -12.8, 0), Vector(0, 0, 1), 0.33),  # 3
    Part.Circle(Vector(1.27, -10.26, 0), Vector(0, 0, 1), 0.33),  # 4
    Part.Circle(Vector(-1.27, -10.26, 0), Vector(0, 0, 1), 0.33),  # 5
    Part.Circle(Vector(-3.81, -10.26, 0), Vector(0, 0, 1), 0.33),  # 6
    Part.Circle(Vector(3.81, -10.26, 0), Vector(0, 0, 1), 0.33),  # 7
], False)
sketch22.addConstraint([
    Sketcher.Constraint("Equal", 0, 1),
    Sketcher.Constraint("Equal", 1, 2),
    Sketcher.Constraint("Equal", 2, 3),
    Sketcher.Constraint("Equal", 3, 4),
    Sketcher.Constraint("Equal", 4, 5),
    Sketcher.Constraint("Equal", 5, 6),
    Sketcher.Constraint("Equal", 6, 7),
    Sketcher.Constraint("Symmetric", 1, 3, 2, 3, -2),
    Sketcher.Constraint("Symmetric", 0, 3, 3, 3, -2),
    Sketcher.Constraint("Symmetric", 4, 3, 5, 3, -2),
    Sketcher.Constraint("Symmetric", 6, 3, 7, 3, -2),
    Sketcher.Constraint("Horizontal", 0, 3, 1, 3),
    Sketcher.Constraint("Horizontal", 5, 3, 6, 3),
    Sketcher.Constraint("Vertical", 1, 3, 4, 3),
    Sketcher.Constraint("Vertical", 3, 3, 6, 3),
    Sketcher.Constraint("Diameter", 0, Q("0.65 mm")),
    Sketcher.Constraint("DistanceY", 0, 3, -1, 1, Q("12.8 mm")),
    Sketcher.Constraint("DistanceX", -1, 1, 0, 3, Q("3.81 mm")),
    Sketcher.Constraint("DistanceX", -1, 1, 1, 3, Q("1.27 mm")),
    Sketcher.Constraint("DistanceY", 4, 3, -1, 1, Q("10.26 mm")),
])
pocket2 = body.newObject("PartDesign::Pocket", "Pocket001")
pocket2.Profile = sketch22
pocket2.Type = "ThroughAll"
pocket2.Reversed = True

# Sketch on XZ plane
sketch23 = body.newObject("Sketcher::SketchObject", "Sketch022")
sketch23.AttachmentSupport = (doc.getObject("XZ_Plane"), [""])
sketch23.MapMode = "FlatFace"
sketch23.AttachmentOffset = App.Placement(Vector(0, 0, -0.5), App.Rotation())
sketch23.addGeometry([
    Part.Circle(Vector(3.8, -12.8, 0), Vector(0, 0, 1), 0.7),  # 0
    Part.Circle(Vector(1.3, -12.8, 0), Vector(0, 0, 1), 0.7),  # 1
    Part.Circle(Vector(-1.3, -12.8, 0), Vector(0, 0, 1), 0.7),  # 2
    Part.Circle(Vector(-3.8, -12.8, 0), Vector(0, 0, 1), 0.7),  # 3
    Part.Circle(Vector(1.3, -10.3, 0), Vector(0, 0, 1), 0.7),  # 4
    Part.Circle(Vector(-1.3, -10.3, 0), Vector(0, 0, 1), 0.7),  # 5
    Part.Circle(Vector(-3.8, -10.3, 0), Vector(0, 0, 1), 0.7),  # 6
    Part.Circle(Vector(3.8, -10.3, 0), Vector(0, 0, 1), 0.7),  # 7
], False)
sketch23.addConstraint([
    Sketcher.Constraint("Equal", 0, 1),
    Sketcher.Constraint("Equal", 1, 2),
    Sketcher.Constraint("Equal", 2, 3),
    Sketcher.Constraint("Equal", 3, 4),
    Sketcher.Constraint("Equal", 4, 5),
    Sketcher.Constraint("Equal", 5, 6),
    Sketcher.Constraint("Equal", 6, 7),
    Sketcher.Constraint("Symmetric", 1, 3, 2, 3, -2),
    Sketcher.Constraint("Symmetric", 0, 3, 3, 3, -2),
    Sketcher.Constraint("Symmetric", 4, 3, 5, 3, -2),
    Sketcher.Constraint("Symmetric", 6, 3, 7, 3, -2),
    Sketcher.Constraint("Horizontal", 0, 3, 1, 3),
    Sketcher.Constraint("Horizontal", 5, 3, 6, 3),
    Sketcher.Constraint("Vertical", 1, 3, 4, 3),
    Sketcher.Constraint("Vertical", 3, 3, 6, 3),
    Sketcher.Constraint("Diameter", 0, Q("1.3 mm")),
    Sketcher.Constraint("DistanceY", 0, 3, -1, 1, Q("12.8 mm")),
    Sketcher.Constraint("DistanceX", -1, 1, 0, 3, Q("3.81 mm")),
    Sketcher.Constraint("DistanceX", -1, 1, 1, 3, Q("1.27 mm")),
    Sketcher.Constraint("DistanceY", 4, 3, -1, 1, Q("10.26 mm")),
])
pocket3 = body.newObject("PartDesign::Pocket", "Pocket002")
pocket3.Profile = sketch23
pocket3.Length = 0.001
pocket3.Reversed = True

doc.recompute()
